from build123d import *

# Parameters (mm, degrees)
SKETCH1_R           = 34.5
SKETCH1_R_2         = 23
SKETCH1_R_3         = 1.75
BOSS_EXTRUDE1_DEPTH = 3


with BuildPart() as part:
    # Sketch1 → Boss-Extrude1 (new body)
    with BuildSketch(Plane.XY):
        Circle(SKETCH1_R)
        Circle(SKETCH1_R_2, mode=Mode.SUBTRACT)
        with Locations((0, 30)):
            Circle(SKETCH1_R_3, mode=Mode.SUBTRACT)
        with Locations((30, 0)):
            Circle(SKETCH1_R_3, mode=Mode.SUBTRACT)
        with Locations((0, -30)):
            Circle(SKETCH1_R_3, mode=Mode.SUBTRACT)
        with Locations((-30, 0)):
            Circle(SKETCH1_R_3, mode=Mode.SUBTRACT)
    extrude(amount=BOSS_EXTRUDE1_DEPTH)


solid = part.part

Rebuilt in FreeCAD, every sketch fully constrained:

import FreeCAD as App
import Part
import Sketcher

doc = App.newDocument("Part")
body = doc.addObject("PartDesign::Body", "Body")

# Sketch on XY plane
sketch1 = doc.addObject("Sketcher::SketchObject", "Sketch")
body.addObject(sketch1)
sketch1.AttachmentSupport = (doc.XY_Plane, [""])
sketch1.MapMode = "FlatFace"
sketch1.addGeometry(Part.Circle(App.Vector(0, 0, 0), App.Vector(0, 0, 1), 34.5), False)
sketch1.addGeometry(Part.Circle(App.Vector(0, -30, 0), App.Vector(0, 0, 1), 1.75), False)
sketch1.addGeometry(Part.Circle(App.Vector(-30, 0, 0), App.Vector(0, 0, 1), 1.75), False)
sketch1.addGeometry(Part.Circle(App.Vector(0, 0, 0), App.Vector(0, 0, 1), 23), False)
sketch1.addGeometry(Part.Circle(App.Vector(30, 0, 0), App.Vector(0, 0, 1), 1.75), False)
sketch1.addGeometry(Part.Circle(App.Vector(0, 30, 0), App.Vector(0, 0, 1), 1.75), False)
sketch1.addConstraint(Sketcher.Constraint("Coincident", 0, 3, -1, 1))
sketch1.addConstraint(Sketcher.Constraint("Coincident", 3, 3, -1, 1))
sketch1.addConstraint(Sketcher.Constraint("Equal", 1, 2))
sketch1.addConstraint(Sketcher.Constraint("Equal", 2, 4))
sketch1.addConstraint(Sketcher.Constraint("Equal", 4, 5))
sketch1.addConstraint(Sketcher.Constraint("Symmetric", 2, 3, 4, 3, -1, 1))
sketch1.addConstraint(Sketcher.Constraint("Symmetric", 1, 3, 5, 3, -1, 1))
sketch1.addConstraint(Sketcher.Constraint("PointOnObject", 1, 3, -2))
sketch1.addConstraint(Sketcher.Constraint("PointOnObject", 2, 3, -1))
sketch1.addConstraint(Sketcher.Constraint("Diameter", 0, 69.0))
sketch1.addConstraint(Sketcher.Constraint("Diameter", 3, 46.0))
sketch1.addConstraint(Sketcher.Constraint("Diameter", 1, 3.5))
sketch1.addConstraint(Sketcher.Constraint("DistanceY", 1, 3, -1, 1, 30.0))
sketch1.addConstraint(Sketcher.Constraint("DistanceX", 2, 3, -1, 1, 30.0))
pad1 = doc.addObject("PartDesign::Pad", "Pad")
body.addObject(pad1)
pad1.Profile = sketch1
pad1.Length = 3

doc.recompute()
